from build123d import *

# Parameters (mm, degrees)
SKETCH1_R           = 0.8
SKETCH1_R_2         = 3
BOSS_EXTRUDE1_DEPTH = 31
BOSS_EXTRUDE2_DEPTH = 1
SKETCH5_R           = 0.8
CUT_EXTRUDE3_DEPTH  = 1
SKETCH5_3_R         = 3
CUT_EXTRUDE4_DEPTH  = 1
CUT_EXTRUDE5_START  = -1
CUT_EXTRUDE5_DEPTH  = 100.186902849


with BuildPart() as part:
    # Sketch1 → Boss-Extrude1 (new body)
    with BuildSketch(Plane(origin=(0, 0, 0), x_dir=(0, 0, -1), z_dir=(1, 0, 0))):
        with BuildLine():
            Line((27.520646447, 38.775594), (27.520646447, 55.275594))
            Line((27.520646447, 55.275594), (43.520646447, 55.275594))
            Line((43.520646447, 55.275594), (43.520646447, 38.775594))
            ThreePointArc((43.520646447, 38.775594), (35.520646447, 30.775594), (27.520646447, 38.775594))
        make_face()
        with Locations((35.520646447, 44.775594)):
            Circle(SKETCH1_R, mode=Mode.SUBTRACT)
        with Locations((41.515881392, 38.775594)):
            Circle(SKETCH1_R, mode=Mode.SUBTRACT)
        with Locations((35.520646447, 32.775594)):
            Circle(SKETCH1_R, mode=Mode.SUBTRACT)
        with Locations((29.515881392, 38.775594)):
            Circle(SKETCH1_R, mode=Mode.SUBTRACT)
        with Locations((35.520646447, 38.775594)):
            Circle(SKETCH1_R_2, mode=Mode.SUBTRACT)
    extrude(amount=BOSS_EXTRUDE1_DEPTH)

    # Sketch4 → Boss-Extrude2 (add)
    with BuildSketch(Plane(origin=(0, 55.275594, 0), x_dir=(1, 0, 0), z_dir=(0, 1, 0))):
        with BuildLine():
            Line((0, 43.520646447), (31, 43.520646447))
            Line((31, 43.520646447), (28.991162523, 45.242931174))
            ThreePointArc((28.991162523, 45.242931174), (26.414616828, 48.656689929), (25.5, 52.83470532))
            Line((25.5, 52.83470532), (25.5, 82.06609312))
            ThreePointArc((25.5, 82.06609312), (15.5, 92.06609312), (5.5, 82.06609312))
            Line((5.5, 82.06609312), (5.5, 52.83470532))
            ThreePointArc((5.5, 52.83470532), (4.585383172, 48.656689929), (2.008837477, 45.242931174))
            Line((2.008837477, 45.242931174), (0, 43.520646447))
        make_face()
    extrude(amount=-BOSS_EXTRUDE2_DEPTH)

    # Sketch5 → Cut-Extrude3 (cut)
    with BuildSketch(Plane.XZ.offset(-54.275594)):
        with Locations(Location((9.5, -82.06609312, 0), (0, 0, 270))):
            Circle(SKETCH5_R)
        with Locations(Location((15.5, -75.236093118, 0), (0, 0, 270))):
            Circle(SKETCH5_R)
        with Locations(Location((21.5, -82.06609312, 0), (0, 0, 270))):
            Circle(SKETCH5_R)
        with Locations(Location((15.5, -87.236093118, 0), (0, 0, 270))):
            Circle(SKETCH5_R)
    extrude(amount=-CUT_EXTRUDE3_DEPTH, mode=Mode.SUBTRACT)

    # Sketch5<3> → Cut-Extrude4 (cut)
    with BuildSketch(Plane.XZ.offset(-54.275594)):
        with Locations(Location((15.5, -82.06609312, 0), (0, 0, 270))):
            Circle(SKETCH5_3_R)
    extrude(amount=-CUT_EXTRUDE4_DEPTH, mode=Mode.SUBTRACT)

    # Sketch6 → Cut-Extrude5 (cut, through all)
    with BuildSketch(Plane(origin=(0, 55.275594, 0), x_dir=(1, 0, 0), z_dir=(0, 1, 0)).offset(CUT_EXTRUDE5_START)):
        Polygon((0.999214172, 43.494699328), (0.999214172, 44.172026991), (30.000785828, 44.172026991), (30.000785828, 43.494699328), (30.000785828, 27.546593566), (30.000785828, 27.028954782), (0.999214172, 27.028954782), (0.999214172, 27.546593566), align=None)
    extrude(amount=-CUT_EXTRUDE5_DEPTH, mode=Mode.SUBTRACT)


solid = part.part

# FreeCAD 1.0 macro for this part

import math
import FreeCAD as App
import Part
import Sketcher


def add_polygon(sketch, points):
    """Adds a closed chain of lines whose ends are joined by coincident constraints."""
    first, n = sketch.GeometryCount, len(points)
    for a, b in zip(points, points[1:] + points[:1]):
        sketch.addGeometry(Part.LineSegment(App.Vector(*a, 0), App.Vector(*b, 0)), False)
    for i in range(n):
        sketch.addConstraint(Sketcher.Constraint("Coincident", first + i, 2, first + (i + 1) % n, 1))

doc = App.newDocument("Part")
params = doc.addObject("Spreadsheet::Sheet", "Params")
for row, (alias, value) in enumerate([
    ("sketch1_diameter", "6 mm"),
    ("sketch1_radius", "8 mm"),
    ("sketch1_diameter2", "1.6 mm"),
    ("sketch1_width", "16.5 mm"),
    ("pad1_length", "31 mm"),
    ("sketch2_radius", "10 mm"),
    ("sketch2_width", "31 mm"),
    ("pad2_length", "1 mm"),
    ("sketch3_diameter", "1.6 mm"),
    ("pocket1_length", "1 mm"),
    ("sketch4_diameter", "6 mm"),
    ("pocket2_length", "1 mm"),
], start=1):
    params.set(f"A{row}", alias)
    params.set(f"B{row}", "=" + value)
    params.setAlias(f"B{row}", alias)

body = doc.addObject("PartDesign::Body", "Body")

sketch1 = body.newObject("Sketcher::SketchObject", "Sketch")
sketch1.AttachmentSupport = (doc.getObject("YZ_Plane"), [""])
sketch1.MapMode = "FlatFace"
sketch1.addGeometry([
    Part.LineSegment(App.Vector(55.275594, -27.520646, 0), App.Vector(38.775594, -27.520646, 0)),
    Part.ArcOfCircle(Part.Circle(App.Vector(38.775594, -35.520646, 0), App.Vector(0, 0, 1), 8), math.radians(90), math.radians(270)),
    Part.LineSegment(App.Vector(38.775594, -43.520646, 0), App.Vector(55.275594, -43.520646, 0)),
    Part.LineSegment(App.Vector(55.275594, -43.520646, 0), App.Vector(55.275594, -27.520646, 0)),
    Part.Circle(App.Vector(32.775594, -35.520646, 0), App.Vector(0, 0, 1), 0.8),
    Part.Circle(App.Vector(38.775594, -41.515881, 0), App.Vector(0, 0, 1), 0.8),
    Part.Circle(App.Vector(38.775594, -35.520646, 0), App.Vector(0, 0, 1), 3),
    Part.Circle(App.Vector(44.775594, -35.520646, 0), App.Vector(0, 0, 1), 0.8),
    Part.Circle(App.Vector(38.775594, -29.515881, 0), App.Vector(0, 0, 1), 0.8),
], False)
sketch1.addConstraint([
    Sketcher.Constraint("Tangent", 0, 2, 1, 1),
    Sketcher.Constraint("Tangent", 1, 2, 2, 1),
    Sketcher.Constraint("Coincident", 2, 2, 3, 1),
    Sketcher.Constraint("Coincident", 3, 2, 0, 1),
    Sketcher.Constraint("Horizontal", 0),
    Sketcher.Constraint("Horizontal", 2),
    Sketcher.Constraint("Vertical", 3),
    Sketcher.Constraint("Coincident", 6, 3, 1, 3),
    Sketcher.Constraint("Equal", 4, 5),
    Sketcher.Constraint("Equal", 5, 7),
    Sketcher.Constraint("Equal", 7, 8),
    Sketcher.Constraint("Horizontal", 1, 3, 4, 3),
    Sketcher.Constraint("Horizontal", 6, 3, 7, 3),
    Sketcher.Constraint("Vertical", 1, 3, 5, 3),
    Sketcher.Constraint("Vertical", 6, 3, 8, 3),
    Sketcher.Constraint("Diameter", 6, 6.0),
    Sketcher.Constraint("Radius", 1, 8.0),
    Sketcher.Constraint("Diameter", 4, 1.6),
    Sketcher.Constraint("DistanceX", 0, 2, 0, 1, 16.5),
    Sketcher.Constraint("DistanceX", 4, 3, 1, 3, 6.0),
    Sketcher.Constraint("DistanceX", 1, 3, 7, 3, 6.0),
    Sketcher.Constraint("DistanceY", 5, 3, 8, 3, 12.0),
    Sketcher.Constraint("DistanceY", 5, 3, -1, 1, 41.515881),
    Sketcher.Constraint("DistanceX", -1, 1, 1, 3, 38.775594),
    Sketcher.Constraint("DistanceY", 1, 3, -1, 1, 35.520646),
])
sketch1.setExpression("Constraints[15]", "Params.sketch1_diameter")
sketch1.setExpression("Constraints[16]", "Params.sketch1_radius")
sketch1.setExpression("Constraints[17]", "Params.sketch1_diameter2")
sketch1.setExpression("Constraints[18]", "Params.sketch1_width")
pad1 = body.newObject("PartDesign::Pad", "Pad")
pad1.Profile = sketch1
pad1.setExpression("Length", "Params.pad1_length")

sketch2 = body.newObject("Sketcher::SketchObject", "Sketch001")
sketch2.AttachmentSupport = (doc.getObject("XZ_Plane"), [""])
sketch2.MapMode = "FlatFace"
sketch2.AttachmentOffset = App.Placement(App.Vector(0, 0, -55.275594), App.Rotation())
sketch2.addGeometry([
    Part.LineSegment(App.Vector(0, -43.520646, 0), App.Vector(31, -43.520646, 0)),
    Part.LineSegment(App.Vector(31, -43.520646, 0), App.Vector(28.991163, -45.242931, 0)),
    Part.ArcOfCircle(Part.Circle(App.Vector(35.5, -52.834705, 0), App.Vector(0, 0, 1), 10), math.radians(130.608266), math.radians(180)),
    Part.LineSegment(App.Vector(25.5, -52.834705, 0), App.Vector(25.5, -82.066093, 0)),
    Part.ArcOfCircle(Part.Circle(App.Vector(15.5, -82.066093, 0), App.Vector(0, 0, 1), 10), math.radians(180), math.radians(360)),
    Part.LineSegment(App.Vector(5.5, -82.066093, 0), App.Vector(5.5, -52.834705, 0)),
    Part.ArcOfCircle(Part.Circle(App.Vector(-4.5, -52.834705, 0), App.Vector(0, 0, 1), 10), math.radians(0), math.radians(49.391734)),
    Part.LineSegment(App.Vector(2.008837, -45.242931, 0), App.Vector(0, -43.520646, 0)),
], False)
sketch2.addConstraint([
    Sketcher.Constraint("Coincident", 0, 2, 1, 1),
    Sketcher.Constraint("Tangent", 1, 2, 2, 1),
    Sketcher.Constraint("Tangent", 2, 2, 3, 1),
    Sketcher.Constraint("Tangent", 3, 2, 4, 2),
    Sketcher.Constraint("Tangent", 4, 1, 5, 1),
    Sketcher.Constraint("Tangent", 5, 2, 6, 1),
    Sketcher.Constraint("Tangent", 6, 2, 7, 1),
    Sketcher.Constraint("Coincident", 7, 2, 0, 1),
    Sketcher.Constraint("Horizontal", 0),
    Sketcher.Constraint("Vertical", 3),
    Sketcher.Constraint("Vertical", 5),
    Sketcher.Constraint("Equal", 2, 4),
    Sketcher.Constraint("Equal", 4, 6),
    Sketcher.Constraint("PointOnObject", 7, 2, -2),
    Sketcher.Constraint("Horizontal", 2, 3, 6, 3),
    Sketcher.Constraint("Horizontal", 1, 2, 6, 2),
    Sketcher.Constraint("Radius", 2, 10.0),
    Sketcher.Constraint("DistanceX", 0, 1, 0, 2, 31.0),
    Sketcher.Constraint("Distance", 1, 2.646071),
    Sketcher.Constraint("DistanceY", 3, 2, 3, 1, 29.231388),
    Sketcher.Constraint("DistanceY", 1, 2, -1, 1, 45.242931),
])
sketch2.setExpression("Constraints[16]", "Params.sketch2_radius")
sketch2.setExpression("Constraints[17]", "Params.sketch2_width")
pad2 = body.newObject("PartDesign::Pad", "Pad001")
pad2.Profile = sketch2
pad2.setExpression("Length", "Params.pad2_length")

sketch3 = body.newObject("Sketcher::SketchObject", "Sketch002")
sketch3.AttachmentSupport = (doc.getObject("XZ_Plane"), [""])
sketch3.MapMode = "FlatFace"
sketch3.AttachmentOffset = App.Placement(App.Vector(0, 0, -54.275594), App.Rotation())
sketch3.addGeometry([
    Part.Circle(App.Vector(9.5, -82.066093, 0), App.Vector(0, 0, 1), 0.8),
    Part.Circle(App.Vector(15.5, -75.236093, 0), App.Vector(0, 0, 1), 0.8),
    Part.Circle(App.Vector(21.5, -82.066093, 0), App.Vector(0, 0, 1), 0.8),
    Part.Circle(App.Vector(15.5, -87.236093, 0), App.Vector(0, 0, 1), 0.8),
], False)
sketch3.addConstraint([
    Sketcher.Constraint("Equal", 0, 1),
    Sketcher.Constraint("Equal", 1, 2),
    Sketcher.Constraint("Equal", 2, 3),
    Sketcher.Constraint("Horizontal", 0, 3, 2, 3),
    Sketcher.Constraint("Vertical", 1, 3, 3, 3),
    Sketcher.Constraint("Diameter", 0, 1.6),
    Sketcher.Constraint("DistanceX", 0, 3, 1, 3, 6.0),
    Sketcher.Constraint("DistanceX", 1, 3, 2, 3, 6.0),
    Sketcher.Constraint("DistanceY", 3, 3, 1, 3, 12.0),
    Sketcher.Constraint("DistanceX", -1, 1, 0, 3, 9.5),
    Sketcher.Constraint("DistanceY", 0, 3, 1, 3, 6.83),
    Sketcher.Constraint("DistanceY", 0, 3, -1, 1, 82.066093),
])
sketch3.setExpression("Constraints[5]", "Params.sketch3_diameter")
pocket1 = body.newObject("PartDesign::Pocket", "Pocket")
pocket1.Profile = sketch3
pocket1.setExpression("Length", "Params.pocket1_length")

sketch4 = body.newObject("Sketcher::SketchObject", "Sketch003")
sketch4.AttachmentSupport = (doc.getObject("XZ_Plane"), [""])
sketch4.MapMode = "FlatFace"
sketch4.AttachmentOffset = App.Placement(App.Vector(0, 0, -54.275594), App.Rotation())
sketch4.addGeometry(Part.Circle(App.Vector(15.5, -82.066093, 0), App.Vector(0, 0, 1), 3), False)
sketch4.addConstraint([
    Sketcher.Constraint("Diameter", 0, 6.0),
    Sketcher.Constraint("DistanceX", -1, 1, 0, 3, 15.5),
    Sketcher.Constraint("DistanceY", 0, 3, -1, 1, 82.066093),
])
sketch4.setExpression("Constraints[0]", "Params.sketch4_diameter")
pocket2 = body.newObject("PartDesign::Pocket", "Pocket001")
pocket2.Profile = sketch4
pocket2.setExpression("Length", "Params.pocket2_length")

sketch5 = body.newObject("Sketcher::SketchObject", "Sketch004")
sketch5.AttachmentSupport = (doc.getObject("XZ_Plane"), [""])
sketch5.MapMode = "FlatFace"
sketch5.AttachmentOffset = App.Placement(App.Vector(0, 0, -54.275594), App.Rotation())
add_polygon(sketch5, [(0.999214, -44.172027), (0.999214, -27.028955), (30.000786, -27.028955), (30.000786, -44.172027)])
sketch5.addConstraint([
    Sketcher.Constraint("Vertical", 0),
    Sketcher.Constraint("Horizontal", 1),
    Sketcher.Constraint("Vertical", 2),
    Sketcher.Constraint("Horizontal", 3),
    Sketcher.Constraint("DistanceX", 1, 1, 1, 2, 29.001572),
    Sketcher.Constraint("DistanceY", 0, 1, 0, 2, 17.143072),
    Sketcher.Constraint("DistanceX", -1, 1, 0, 2, 0.999214),
    Sketcher.Constraint("DistanceY", 0, 2, -1, 1, 27.028955),
])
pocket3 = body.newObject("PartDesign::Pocket", "Pocket002")
pocket3.Profile = sketch5
pocket3.Type = "ThroughAll"
pocket3.Reversed = True

doc.recompute()
